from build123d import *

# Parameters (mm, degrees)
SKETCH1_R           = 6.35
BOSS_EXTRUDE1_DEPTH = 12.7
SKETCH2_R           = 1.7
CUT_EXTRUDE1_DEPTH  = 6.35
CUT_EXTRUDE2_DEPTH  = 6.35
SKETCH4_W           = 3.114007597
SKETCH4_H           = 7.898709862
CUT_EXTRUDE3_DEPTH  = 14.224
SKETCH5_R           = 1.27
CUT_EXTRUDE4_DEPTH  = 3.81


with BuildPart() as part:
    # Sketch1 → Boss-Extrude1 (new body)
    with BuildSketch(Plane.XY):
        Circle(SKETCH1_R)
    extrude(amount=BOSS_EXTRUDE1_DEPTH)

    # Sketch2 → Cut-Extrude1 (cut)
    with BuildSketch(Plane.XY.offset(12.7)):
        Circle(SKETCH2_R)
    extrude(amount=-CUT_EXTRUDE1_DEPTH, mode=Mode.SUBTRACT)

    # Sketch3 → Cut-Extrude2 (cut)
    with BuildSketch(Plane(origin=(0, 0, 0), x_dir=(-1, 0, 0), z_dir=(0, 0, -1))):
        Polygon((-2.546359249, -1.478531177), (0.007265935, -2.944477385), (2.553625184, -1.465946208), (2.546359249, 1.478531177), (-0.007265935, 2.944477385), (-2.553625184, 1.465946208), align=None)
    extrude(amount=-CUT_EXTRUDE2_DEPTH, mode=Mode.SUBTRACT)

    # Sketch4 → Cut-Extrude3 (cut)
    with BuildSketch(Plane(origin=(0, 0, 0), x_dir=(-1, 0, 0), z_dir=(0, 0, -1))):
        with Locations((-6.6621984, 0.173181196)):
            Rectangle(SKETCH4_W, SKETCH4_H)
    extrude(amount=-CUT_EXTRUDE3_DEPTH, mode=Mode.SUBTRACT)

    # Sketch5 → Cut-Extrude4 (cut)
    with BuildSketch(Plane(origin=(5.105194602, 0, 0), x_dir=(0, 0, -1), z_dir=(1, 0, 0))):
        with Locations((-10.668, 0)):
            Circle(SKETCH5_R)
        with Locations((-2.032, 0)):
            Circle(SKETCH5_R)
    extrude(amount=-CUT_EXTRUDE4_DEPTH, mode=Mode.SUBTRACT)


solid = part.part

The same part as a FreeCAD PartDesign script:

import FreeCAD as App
import Part
import Sketcher
Q = App.Units.Quantity

doc = App.newDocument("Part")
body = doc.addObject("PartDesign::Body", "Body")

# Sketch on XY plane
sketch1 = body.newObject("Sketcher::SketchObject", "Sketch")
sketch1.AttachmentSupport = (doc.getObject("XY_Plane"), [""])
sketch1.MapMode = "FlatFace"
sketch1.addGeometry(Part.Circle(App.Vector(0, 0, 0), App.Vector(0, 0, 1), 6), False)
sketch1.addConstraint([
    Sketcher.Constraint("Coincident", 0, 3, -1, 1),
    Sketcher.Constraint("Diameter", 0, Q("0.5 in")),
])
pad1 = body.newObject("PartDesign::Pad", "Pad")
pad1.Profile = sketch1
pad1.Length = Q("0.5 in")

# Sketch on XY plane
sketch2 = body.newObject("Sketcher::SketchObject", "Sketch001")
sketch2.AttachmentSupport = (doc.getObject("XY_Plane"), [""])
sketch2.MapMode = "FlatFace"
sketch2.AttachmentOffset = App.Placement(App.Vector(0, 0, 0.5 * 25.4), App.Rotation())
sketch2.addGeometry(Part.Circle(App.Vector(0, 0, 0), App.Vector(0, 0, 1), 1.7), False)
sketch2.addConstraint([
    Sketcher.Constraint("Coincident", 0, 3, -1, 1),
    Sketcher.Constraint("Diameter", 0, 3.4),
])
pocket1 = body.newObject("PartDesign::Pocket", "Pocket")
pocket1.Profile = sketch2
pocket1.Length = Q("0.25 in")

# Sketch on XY plane
sketch3 = body.newObject("Sketcher::SketchObject", "Sketch002")
sketch3.AttachmentSupport = (doc.getObject("XY_Plane"), [""])
sketch3.MapMode = "FlatFace"
sketch3.addGeometry([
    Part.LineSegment(App.Vector(2.5, -1.5, 0), App.Vector(0, -2.9, 0)),  # 0
    Part.LineSegment(App.Vector(0, -2.9, 0), App.Vector(-2.6, -1.5, 0)),  # 1
    Part.LineSegment(App.Vector(-2.6, -1.5, 0), App.Vector(-2.5, 1.5, 0)),  # 2
    Part.LineSegment(App.Vector(-2.5, 1.5, 0), App.Vector(0, 2.9, 0)),  # 3
    Part.LineSegment(App.Vector(0, 2.9, 0), App.Vector(2.6, 1.5, 0)),  # 4
    Part.LineSegment(App.Vector(2.6, 1.5, 0), App.Vector(2.5, -1.5, 0)),  # 5
], False)
sketch3.addConstraint([
    Sketcher.Constraint("Coincident", 0, 2, 1, 1),
    Sketcher.Constraint("Coincident", 1, 2, 2, 1),
    Sketcher.Constraint("Coincident", 2, 2, 3, 1),
    Sketcher.Constraint("Coincident", 3, 2, 4, 1),
    Sketcher.Constraint("Coincident", 4, 2, 5, 1),
    Sketcher.Constraint("Coincident", 5, 2, 0, 1),
    Sketcher.Constraint("Symmetric", 0, 2, 3, 2, -1, 1),
    Sketcher.Constraint("Symmetric", 1, 2, 4, 2, -1, 1),
    Sketcher.Constraint("Symmetric", 2, 2, 5, 2, -1, 1),
    Sketcher.Constraint("Equal", 0, 1),
    Sketcher.Constraint("Equal", 1, 2),
    Sketcher.Constraint("DistanceX", 2, 2, -1, 1, 2.546359),
    Sketcher.Constraint("DistanceY", -1, 1, 2, 2, 1.478531),
    Sketcher.Constraint("DistanceX", 1, 2, 0, 2, 2.546359),
    Sketcher.Constraint("DistanceY", 0, 2, 1, 2, 1.478531),
])
pocket2 = body.newObject("PartDesign::Pocket", "Pocket001")
pocket2.Profile = sketch3
pocket2.Length = Q("0.25 in")
pocket2.Reversed = True

# Sketch on XY plane
sketch4 = body.newObject("Sketcher::SketchObject", "Sketch003")
sketch4.AttachmentSupport = (doc.getObject("XY_Plane"), [""])
sketch4.MapMode = "FlatFace"
sketch4.addGeometry([
    Part.LineSegment(App.Vector(8.2, 4.1, 0), App.Vector(8.2, -3.8, 0)),
    Part.LineSegment(App.Vector(8.2, -3.8, 0), App.Vector(5.1, -3.8, 0)),
    Part.LineSegment(App.Vector(5.1, -3.8, 0), App.Vector(5.1, 4.1, 0)),
    Part.LineSegment(App.Vector(5.1, 4.1, 0), App.Vector(8.2, 4.1, 0)),
], False)
sketch4.addConstraint([
    Sketcher.Constraint("Coincident", 0, 2, 1, 1),
    Sketcher.Constraint("Coincident", 1, 2, 2, 1),
    Sketcher.Constraint("Coincident", 2, 2, 3, 1),
    Sketcher.Constraint("Coincident", 3, 2, 0, 1),
    Sketcher.Constraint("Vertical", 0),
    Sketcher.Constraint("Horizontal", 1),
    Sketcher.Constraint("Vertical", 2),
    Sketcher.Constraint("Horizontal", 3),
    Sketcher.Constraint("DistanceY", 0, 2, 0, 1, 7.89871),
    Sketcher.Constraint("DistanceX", 1, 2, 1, 1, 3.114008),
    Sketcher.Constraint("DistanceX", -1, 1, 0, 2, 8.219202),
    Sketcher.Constraint("DistanceY", 0, 2, -1, 1, 3.776174),
])
pocket3 = body.newObject("PartDesign::Pocket", "Pocket002")
pocket3.Profile = sketch4
pocket3.Length = Q("0.56 in")
pocket3.Reversed = True

# Sketch on YZ plane
sketch5 = body.newObject("Sketcher::SketchObject", "Sketch004")
sketch5.AttachmentSupport = (doc.getObject("YZ_Plane"), [""])
sketch5.MapMode = "FlatFace"
sketch5.AttachmentOffset = App.Placement(App.Vector(0, 0, 5.105195), App.Rotation())
sketch5.addGeometry([
    Part.Circle(App.Vector(0, 10.7, 0), App.Vector(0, 0, 1), 1.3),
    Part.Circle(App.Vector(0, 2, 0), App.Vector(0, 0, 1), 1.3),
], False)
sketch5.addConstraint([
    Sketcher.Constraint("Equal", 0, 1),
    Sketcher.Constraint("PointOnObject", 0, 3, -2),
    Sketcher.Constraint("PointOnObject", 1, 3, -2),
    Sketcher.Constraint("Diameter", 0, Q("0.1 in")),
    Sketcher.Constraint("DistanceY", -1, 1, 0, 3, Q("0.42 in")),
    Sketcher.Constraint("DistanceY", -1, 1, 1, 3, Q("0.08 in")),
])
pocket4 = body.newObject("PartDesign::Pocket", "Pocket003")
pocket4.Profile = sketch5
pocket4.Length = Q("0.15 in")

doc.recompute()
